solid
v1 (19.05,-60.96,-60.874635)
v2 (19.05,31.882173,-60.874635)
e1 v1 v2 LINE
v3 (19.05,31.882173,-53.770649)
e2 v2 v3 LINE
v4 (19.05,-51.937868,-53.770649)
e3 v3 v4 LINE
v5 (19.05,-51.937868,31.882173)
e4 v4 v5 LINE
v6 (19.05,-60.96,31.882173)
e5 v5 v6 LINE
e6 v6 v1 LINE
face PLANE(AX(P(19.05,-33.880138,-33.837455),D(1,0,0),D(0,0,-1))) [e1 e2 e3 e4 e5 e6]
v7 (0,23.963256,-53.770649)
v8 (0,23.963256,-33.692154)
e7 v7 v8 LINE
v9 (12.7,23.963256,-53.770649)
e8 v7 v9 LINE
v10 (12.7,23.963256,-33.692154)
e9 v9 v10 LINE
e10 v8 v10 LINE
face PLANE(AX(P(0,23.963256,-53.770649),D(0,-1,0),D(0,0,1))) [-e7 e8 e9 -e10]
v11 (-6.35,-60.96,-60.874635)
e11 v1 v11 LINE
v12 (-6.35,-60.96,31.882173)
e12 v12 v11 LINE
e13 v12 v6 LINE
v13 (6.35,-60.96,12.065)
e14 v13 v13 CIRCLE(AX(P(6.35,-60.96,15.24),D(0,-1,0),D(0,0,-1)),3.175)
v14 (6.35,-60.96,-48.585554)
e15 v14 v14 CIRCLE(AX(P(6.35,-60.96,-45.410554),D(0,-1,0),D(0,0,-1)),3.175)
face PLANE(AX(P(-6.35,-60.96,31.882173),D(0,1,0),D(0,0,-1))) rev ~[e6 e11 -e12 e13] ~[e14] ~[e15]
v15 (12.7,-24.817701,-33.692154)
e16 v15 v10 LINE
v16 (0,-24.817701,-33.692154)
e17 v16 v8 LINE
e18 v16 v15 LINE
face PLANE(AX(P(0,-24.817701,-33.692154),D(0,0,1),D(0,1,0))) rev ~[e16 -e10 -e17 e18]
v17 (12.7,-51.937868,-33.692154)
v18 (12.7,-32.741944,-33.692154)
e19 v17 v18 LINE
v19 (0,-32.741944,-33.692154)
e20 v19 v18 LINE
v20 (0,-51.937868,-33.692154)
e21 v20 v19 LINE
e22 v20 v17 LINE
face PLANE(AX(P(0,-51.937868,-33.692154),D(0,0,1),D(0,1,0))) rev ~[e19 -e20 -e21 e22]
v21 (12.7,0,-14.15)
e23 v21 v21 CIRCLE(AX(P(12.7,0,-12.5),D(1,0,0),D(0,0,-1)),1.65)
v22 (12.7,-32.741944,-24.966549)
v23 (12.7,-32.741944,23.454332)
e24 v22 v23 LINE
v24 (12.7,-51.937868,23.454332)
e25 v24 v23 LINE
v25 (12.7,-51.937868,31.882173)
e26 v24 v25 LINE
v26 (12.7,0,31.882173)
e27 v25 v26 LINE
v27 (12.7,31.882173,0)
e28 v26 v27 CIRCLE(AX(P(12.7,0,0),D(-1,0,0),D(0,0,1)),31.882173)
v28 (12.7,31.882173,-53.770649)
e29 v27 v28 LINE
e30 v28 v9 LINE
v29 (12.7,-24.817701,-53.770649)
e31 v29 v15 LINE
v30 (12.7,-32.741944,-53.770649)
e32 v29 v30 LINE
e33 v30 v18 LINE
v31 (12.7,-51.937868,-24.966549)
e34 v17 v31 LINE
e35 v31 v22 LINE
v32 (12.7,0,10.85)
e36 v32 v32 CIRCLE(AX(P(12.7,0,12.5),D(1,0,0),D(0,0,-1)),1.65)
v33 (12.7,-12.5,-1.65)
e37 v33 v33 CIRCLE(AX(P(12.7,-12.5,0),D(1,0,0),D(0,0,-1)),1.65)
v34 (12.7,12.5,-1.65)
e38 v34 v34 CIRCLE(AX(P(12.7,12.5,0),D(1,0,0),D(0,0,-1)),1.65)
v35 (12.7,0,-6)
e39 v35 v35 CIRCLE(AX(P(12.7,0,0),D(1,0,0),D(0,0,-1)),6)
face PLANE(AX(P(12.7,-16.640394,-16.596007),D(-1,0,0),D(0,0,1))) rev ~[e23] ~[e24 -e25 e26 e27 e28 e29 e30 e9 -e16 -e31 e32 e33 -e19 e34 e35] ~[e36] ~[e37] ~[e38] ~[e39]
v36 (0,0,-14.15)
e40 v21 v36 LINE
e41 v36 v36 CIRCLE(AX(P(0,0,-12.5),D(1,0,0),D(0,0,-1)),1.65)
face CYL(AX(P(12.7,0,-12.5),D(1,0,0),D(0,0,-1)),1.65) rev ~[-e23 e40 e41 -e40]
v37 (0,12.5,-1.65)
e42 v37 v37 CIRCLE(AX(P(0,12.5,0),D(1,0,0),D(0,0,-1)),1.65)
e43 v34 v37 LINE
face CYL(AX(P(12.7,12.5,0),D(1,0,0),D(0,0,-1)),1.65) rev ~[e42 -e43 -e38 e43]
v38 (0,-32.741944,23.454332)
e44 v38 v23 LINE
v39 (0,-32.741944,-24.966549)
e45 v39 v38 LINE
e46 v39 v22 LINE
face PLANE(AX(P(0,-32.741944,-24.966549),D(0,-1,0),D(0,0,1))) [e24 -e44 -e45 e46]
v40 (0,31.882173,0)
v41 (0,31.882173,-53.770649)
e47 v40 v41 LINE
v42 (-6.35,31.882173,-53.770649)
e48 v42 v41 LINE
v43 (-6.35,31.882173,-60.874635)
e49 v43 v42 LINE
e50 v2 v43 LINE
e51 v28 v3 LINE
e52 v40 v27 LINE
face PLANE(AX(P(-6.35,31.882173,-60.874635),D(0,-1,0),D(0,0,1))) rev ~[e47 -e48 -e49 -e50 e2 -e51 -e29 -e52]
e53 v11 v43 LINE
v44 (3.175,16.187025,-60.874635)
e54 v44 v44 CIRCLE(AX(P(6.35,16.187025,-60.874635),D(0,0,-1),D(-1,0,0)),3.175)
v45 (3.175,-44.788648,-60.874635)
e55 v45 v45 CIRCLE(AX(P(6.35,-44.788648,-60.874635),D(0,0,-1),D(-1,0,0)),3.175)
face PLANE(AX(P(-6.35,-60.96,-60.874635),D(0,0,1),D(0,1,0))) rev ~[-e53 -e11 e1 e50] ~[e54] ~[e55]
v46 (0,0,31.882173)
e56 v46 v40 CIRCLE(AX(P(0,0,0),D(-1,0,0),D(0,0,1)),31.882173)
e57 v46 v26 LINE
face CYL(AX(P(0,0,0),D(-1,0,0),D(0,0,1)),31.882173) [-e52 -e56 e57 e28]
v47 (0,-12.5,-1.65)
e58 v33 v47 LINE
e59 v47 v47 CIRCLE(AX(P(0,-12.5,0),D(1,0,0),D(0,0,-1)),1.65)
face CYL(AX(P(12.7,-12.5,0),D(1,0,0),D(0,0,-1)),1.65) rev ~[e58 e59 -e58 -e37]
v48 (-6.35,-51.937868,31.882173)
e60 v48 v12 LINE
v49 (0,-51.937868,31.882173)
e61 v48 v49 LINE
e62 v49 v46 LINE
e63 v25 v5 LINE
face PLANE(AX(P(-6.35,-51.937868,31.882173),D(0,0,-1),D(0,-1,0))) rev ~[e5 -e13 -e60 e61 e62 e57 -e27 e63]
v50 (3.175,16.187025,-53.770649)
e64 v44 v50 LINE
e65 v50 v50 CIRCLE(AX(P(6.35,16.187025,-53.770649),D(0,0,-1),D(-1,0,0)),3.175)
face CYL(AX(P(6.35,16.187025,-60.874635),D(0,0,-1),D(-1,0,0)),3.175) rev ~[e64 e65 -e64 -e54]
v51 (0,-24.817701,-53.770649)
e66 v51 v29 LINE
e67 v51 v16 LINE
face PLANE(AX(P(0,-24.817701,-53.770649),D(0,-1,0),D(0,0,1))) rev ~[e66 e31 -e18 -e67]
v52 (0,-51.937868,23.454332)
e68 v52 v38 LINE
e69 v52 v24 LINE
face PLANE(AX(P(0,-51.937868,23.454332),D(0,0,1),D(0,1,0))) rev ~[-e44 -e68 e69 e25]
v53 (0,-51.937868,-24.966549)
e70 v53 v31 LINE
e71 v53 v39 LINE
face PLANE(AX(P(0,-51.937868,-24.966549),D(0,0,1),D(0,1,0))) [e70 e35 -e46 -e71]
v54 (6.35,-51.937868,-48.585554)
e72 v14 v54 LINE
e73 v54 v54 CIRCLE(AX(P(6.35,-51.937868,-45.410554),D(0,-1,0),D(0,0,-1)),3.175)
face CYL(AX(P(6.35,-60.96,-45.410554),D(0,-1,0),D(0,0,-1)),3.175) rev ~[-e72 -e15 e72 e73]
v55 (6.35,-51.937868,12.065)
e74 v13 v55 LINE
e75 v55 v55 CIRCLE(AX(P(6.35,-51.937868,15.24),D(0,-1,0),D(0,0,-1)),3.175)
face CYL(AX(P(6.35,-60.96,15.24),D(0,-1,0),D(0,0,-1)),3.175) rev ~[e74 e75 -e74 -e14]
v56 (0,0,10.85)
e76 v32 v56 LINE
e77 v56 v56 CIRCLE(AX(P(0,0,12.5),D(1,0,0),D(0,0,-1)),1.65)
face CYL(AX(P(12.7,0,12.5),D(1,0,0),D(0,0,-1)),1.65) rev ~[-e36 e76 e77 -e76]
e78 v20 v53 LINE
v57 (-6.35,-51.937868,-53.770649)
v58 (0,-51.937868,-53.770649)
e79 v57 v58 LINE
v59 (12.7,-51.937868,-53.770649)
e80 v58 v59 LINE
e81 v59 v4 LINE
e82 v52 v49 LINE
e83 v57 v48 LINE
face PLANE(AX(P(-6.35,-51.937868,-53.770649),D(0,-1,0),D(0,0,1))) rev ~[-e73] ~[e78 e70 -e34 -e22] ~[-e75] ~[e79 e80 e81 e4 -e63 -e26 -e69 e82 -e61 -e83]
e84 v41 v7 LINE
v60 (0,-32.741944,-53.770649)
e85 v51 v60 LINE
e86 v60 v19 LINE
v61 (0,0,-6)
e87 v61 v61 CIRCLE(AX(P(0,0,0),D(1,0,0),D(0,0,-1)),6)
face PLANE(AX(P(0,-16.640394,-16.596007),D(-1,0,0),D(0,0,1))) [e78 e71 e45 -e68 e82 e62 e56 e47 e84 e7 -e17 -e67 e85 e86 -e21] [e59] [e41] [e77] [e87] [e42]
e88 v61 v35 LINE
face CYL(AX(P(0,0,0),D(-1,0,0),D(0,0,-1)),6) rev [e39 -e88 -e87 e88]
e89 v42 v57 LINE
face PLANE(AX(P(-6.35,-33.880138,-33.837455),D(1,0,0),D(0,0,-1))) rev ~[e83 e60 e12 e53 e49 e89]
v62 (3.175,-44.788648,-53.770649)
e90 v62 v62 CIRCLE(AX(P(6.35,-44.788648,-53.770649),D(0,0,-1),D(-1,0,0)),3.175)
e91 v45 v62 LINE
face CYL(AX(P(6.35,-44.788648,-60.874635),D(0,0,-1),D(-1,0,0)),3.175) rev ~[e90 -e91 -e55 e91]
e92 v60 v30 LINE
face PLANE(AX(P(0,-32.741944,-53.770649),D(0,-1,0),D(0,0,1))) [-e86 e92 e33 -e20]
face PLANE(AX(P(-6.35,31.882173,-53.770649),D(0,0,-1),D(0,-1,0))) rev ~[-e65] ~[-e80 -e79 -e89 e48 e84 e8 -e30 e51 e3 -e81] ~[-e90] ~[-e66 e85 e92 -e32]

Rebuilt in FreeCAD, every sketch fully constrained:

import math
import FreeCAD as App
import Part
import Sketcher

V = App.Vector
Q = App.Units.Quantity

doc = App.newDocument("Part")
params = doc.addObject("Spreadsheet::Sheet", "Params")
for row, (alias, value) in enumerate([
    ("sketch1_width", "2.4 in"),
    ("pad1_length", "0.5 in"),
    ("pad2_length", "0.25 in"),
    ("pad2_length2", "0.75 in"),
    ("pocket1_length", "1.03 in"),
    ("sketch4_diameter", "0.25 in"),
    ("pocket2_length", "0.45 in"),
    ("sketch5_diameter", "0.25 in"),
    ("pocket3_length", "0.45 in"),
    ("pocket4_length", "0.86 in"),
], start=1):
    params.set(f"A{row}", alias)
    params.set(f"B{row}", "=" + value)
    params.setAlias(f"B{row}", alias)

body = doc.addObject("PartDesign::Body", "Body")

# Sketch on YZ plane
sketch1 = body.newObject("Sketcher::SketchObject", "Sketch")
sketch1.AttachmentSupport = (doc.getObject("YZ_Plane"), [""])
sketch1.MapMode = "FlatFace"
sketch1.addGeometry(Part.LineSegment(V(31.882173, -60.874635, 0), V(31.882173, 0, 0)), False)
sketch1.addGeometry(Part.ArcOfCircle(Part.Circle(V(0, 0, 0), V(0, 0, 1), 31.882173), math.radians(0), math.radians(90)), False)
sketch1.addGeometry(Part.LineSegment(V(0, 31.882173, 0), V(-60.96, 31.882173, 0)), False)
sketch1.addGeometry(Part.LineSegment(V(-60.96, 31.882173, 0), V(-60.96, -60.874635, 0)), False)
sketch1.addGeometry(Part.LineSegment(V(-60.96, -60.874635, 0), V(31.882173, -60.874635, 0)), False)
sketch1.addGeometry(Part.Circle(V(0, 0, 0), V(0, 0, 1), 6), False)
sketch1.addConstraint(Sketcher.Constraint("Tangent", 0, 2, 1, 1))
sketch1.addConstraint(Sketcher.Constraint("Tangent", 1, 2, 2, 1))
sketch1.addConstraint(Sketcher.Constraint("Coincident", 2, 2, 3, 1))
sketch1.addConstraint(Sketcher.Constraint("Coincident", 3, 2, 4, 1))
sketch1.addConstraint(Sketcher.Constraint("Coincident", 4, 2, 0, 1))
sketch1.addConstraint(Sketcher.Constraint("Vertical", 0))
sketch1.addConstraint(Sketcher.Constraint("Horizontal", 2))
sketch1.addConstraint(Sketcher.Constraint("Vertical", 3))
sketch1.addConstraint(Sketcher.Constraint("Horizontal", 4))
sketch1.addConstraint(Sketcher.Constraint("Coincident", 1, 3, -1, 1))
sketch1.addConstraint(Sketcher.Constraint("Coincident", 5, 3, -1, 1))
sketch1.addConstraint(Sketcher.Constraint("DistanceX", 2, 2, 2, 1, Q("2.4 in")))
sketch1.addConstraint(Sketcher.Constraint("Diameter", 5, 12.0))
sketch1.addConstraint(Sketcher.Constraint("Radius", 1, 31.882173))
sketch1.addConstraint(Sketcher.Constraint("DistanceY", 0, 1, 0, 2, 60.874635))
sketch1.setExpression("Constraints[11]", "Params.sketch1_width")
pad1 = body.newObject("PartDesign::Pad", "Pad")
pad1.Profile = sketch1
pad1.setExpression("Length", "Params.pad1_length")

# Sketch on YZ plane
sketch2 = body.newObject("Sketcher::SketchObject", "Sketch001")
sketch2.AttachmentSupport = (doc.getObject("YZ_Plane"), [""])
sketch2.MapMode = "FlatFace"
sketch2.AttachmentOffset = App.Placement(V(0, 0, 0.5 * 25.4), App.Rotation())
sketch2.addGeometry(Part.LineSegment(V(31.882173, -60.874635, 0), V(31.882173, -53.770649, 0)), False)
sketch2.addGeometry(Part.LineSegment(V(31.882173, -53.770649, 0), V(-51.937868, -53.770649, 0)), False)
sketch2.addGeometry(Part.LineSegment(V(-51.937868, -53.770649, 0), V(-51.937868, 31.882173, 0)), False)
sketch2.addGeometry(Part.LineSegment(V(-51.937868, 31.882173, 0), V(-60.96, 31.882173, 0)), False)
sketch2.addGeometry(Part.LineSegment(V(-60.96, 31.882173, 0), V(-60.96, -60.874635, 0)), False)
sketch2.addGeometry(Part.LineSegment(V(-60.96, -60.874635, 0), V(31.882173, -60.874635, 0)), False)
sketch2.addConstraint(Sketcher.Constraint("Coincident", 0, 2, 1, 1))
sketch2.addConstraint(Sketcher.Constraint("Coincident", 1, 2, 2, 1))
sketch2.addConstraint(Sketcher.Constraint("Coincident", 2, 2, 3, 1))
sketch2.addConstraint(Sketcher.Constraint("Coincident", 3, 2, 4, 1))
sketch2.addConstraint(Sketcher.Constraint("Coincident", 4, 2, 5, 1))
sketch2.addConstraint(Sketcher.Constraint("Coincident", 5, 2, 0, 1))
sketch2.addConstraint(Sketcher.Constraint("Vertical", 0))
sketch2.addConstraint(Sketcher.Constraint("Horizontal", 1))
sketch2.addConstraint(Sketcher.Constraint("Vertical", 2))
sketch2.addConstraint(Sketcher.Constraint("Horizontal", 3))
sketch2.addConstraint(Sketcher.Constraint("Vertical", 4))
sketch2.addConstraint(Sketcher.Constraint("Horizontal", 5))
sketch2.addConstraint(Sketcher.Constraint("DistanceX", 3, 2, -1, 1, Q("2.4 in")))
sketch2.addConstraint(Sketcher.Constraint("DistanceX", 1, 2, 1, 1, 83.820041))
sketch2.addConstraint(Sketcher.Constraint("DistanceY", 2, 1, 2, 2, 85.652822))
sketch2.addConstraint(Sketcher.Constraint("DistanceX", 3, 2, 3, 1, 9.022132))
sketch2.addConstraint(Sketcher.Constraint("DistanceY", 0, 1, 0, 2, 7.103986))
sketch2.addConstraint(Sketcher.Constraint("DistanceY", 0, 2, -1, 1, 53.770649))
pad2 = body.newObject("PartDesign::Pad", "Pad001")
pad2.Profile = sketch2
pad2.Type = "TwoLengths"
pad2.setExpression("Length", "Params.pad2_length")
pad2.setExpression("Length2", "Params.pad2_length2")

# Sketch on YZ plane
sketch3 = body.newObject("Sketcher::SketchObject", "Sketch002")
sketch3.AttachmentSupport = (doc.getObject("YZ_Plane"), [""])
sketch3.MapMode = "FlatFace"
sketch3.addGeometry(Part.LineSegment(V(23.963256, -53.770649, 0), V(-24.817701, -53.770649, 0)), False)
sketch3.addGeometry(Part.LineSegment(V(-24.817701, -53.770649, 0), V(-24.817701, -33.692154, 0)), False)
sketch3.addGeometry(Part.LineSegment(V(-24.817701, -33.692154, 0), V(23.963256, -33.692154, 0)), False)
sketch3.addGeometry(Part.LineSegment(V(23.963256, -33.692154, 0), V(23.963256, -53.770649, 0)), False)
sketch3.addGeometry(Part.LineSegment(V(-32.741944, -24.966549, 0), V(-51.937868, -24.966549, 0)), False)
sketch3.addGeometry(Part.LineSegment(V(-51.937868, -24.966549, 0), V(-51.937868, 23.454332, 0)), False)
sketch3.addGeometry(Part.LineSegment(V(-51.937868, 23.454332, 0), V(-32.741944, 23.454332, 0)), False)
sketch3.addGeometry(Part.LineSegment(V(-32.741944, 23.454332, 0), V(-32.741944, -24.966549, 0)), False)
sketch3.addGeometry(Part.LineSegment(V(-32.741944, -53.770649, 0), V(-51.937868, -53.770649, 0)), False)
sketch3.addGeometry(Part.LineSegment(V(-51.937868, -53.770649, 0), V(-51.937868, -33.692154, 0)), False)
sketch3.addGeometry(Part.LineSegment(V(-51.937868, -33.692154, 0), V(-32.741944, -33.692154, 0)), False)
sketch3.addGeometry(Part.LineSegment(V(-32.741944, -33.692154, 0), V(-32.741944, -53.770649, 0)), False)
sketch3.addConstraint(Sketcher.Constraint("Coincident", 0, 2, 1, 1))
sketch3.addConstraint(Sketcher.Constraint("Coincident", 1, 2, 2, 1))
sketch3.addConstraint(Sketcher.Constraint("Coincident", 2, 2, 3, 1))
sketch3.addConstraint(Sketcher.Constraint("Coincident", 3, 2, 0, 1))
sketch3.addConstraint(Sketcher.Constraint("Coincident", 4, 2, 5, 1))
sketch3.addConstraint(Sketcher.Constraint("Coincident", 5, 2, 6, 1))
sketch3.addConstraint(Sketcher.Constraint("Coincident", 6, 2, 7, 1))
sketch3.addConstraint(Sketcher.Constraint("Coincident", 7, 2, 4, 1))
sketch3.addConstraint(Sketcher.Constraint("Coincident", 8, 2, 9, 1))
sketch3.addConstraint(Sketcher.Constraint("Coincident", 9, 2, 10, 1))
sketch3.addConstraint(Sketcher.Constraint("Coincident", 10, 2, 11, 1))
sketch3.addConstraint(Sketcher.Constraint("Coincident", 11, 2, 8, 1))
sketch3.addConstraint(Sketcher.Constraint("Horizontal", 0))
sketch3.addConstraint(Sketcher.Constraint("Vertical", 1))
sketch3.addConstraint(Sketcher.Constraint("Horizontal", 2))
sketch3.addConstraint(Sketcher.Constraint("Vertical", 3))
sketch3.addConstraint(Sketcher.Constraint("Horizontal", 4))
sketch3.addConstraint(Sketcher.Constraint("Vertical", 5))
sketch3.addConstraint(Sketcher.Constraint("Horizontal", 6))
sketch3.addConstraint(Sketcher.Constraint("Vertical", 7))
sketch3.addConstraint(Sketcher.Constraint("Horizontal", 8))
sketch3.addConstraint(Sketcher.Constraint("Vertical", 9))
sketch3.addConstraint(Sketcher.Constraint("Horizontal", 10))
sketch3.addConstraint(Sketcher.Constraint("Vertical", 11))
sketch3.addConstraint(Sketcher.Constraint("Horizontal", 3, 2, 8, 2))
sketch3.addConstraint(Sketcher.Constraint("Horizontal", 2, 2, 9, 2))
sketch3.addConstraint(Sketcher.Constraint("Vertical", 5, 2, 8, 2))
sketch3.addConstraint(Sketcher.Constraint("Vertical", 7, 2, 10, 2))
sketch3.addConstraint(Sketcher.Constraint("DistanceY", 5, 1, 5, 2, 48.420881))
sketch3.addConstraint(Sketcher.Constraint("DistanceX", 0, 2, -1, 1, 24.817701))
sketch3.addConstraint(Sketcher.Constraint("DistanceY", 0, 2, 4, 2, 28.8041))
sketch3.addConstraint(Sketcher.Constraint("DistanceX", 6, 2, 2, 2, 56.7052))
sketch3.addConstraint(Sketcher.Constraint("DistanceX", 0, 2, 0, 1, 48.780957))
sketch3.addConstraint(Sketcher.Constraint("DistanceX", 4, 2, 4, 1, 19.195924))
sketch3.addConstraint(Sketcher.Constraint("DistanceY", 1, 1, 1, 2, 20.078495))
sketch3.addConstraint(Sketcher.Constraint("DistanceY", 0, 2, -1, 1, 53.770649))
pocket1 = body.newObject("PartDesign::Pocket", "Pocket")
pocket1.Profile = sketch3
pocket1.setExpression("Length", "Params.pocket1_length")
pocket1.Reversed = True

# Sketch on XY plane
sketch4 = body.newObject("Sketcher::SketchObject", "Sketch003")
sketch4.AttachmentSupport = (doc.getObject("XY_Plane"), [""])
sketch4.MapMode = "FlatFace"
sketch4.AttachmentOffset = App.Placement(V(0, 0, -60.874635), App.Rotation())
sketch4.addGeometry(Part.Circle(V(6.35, 16.187025, 0), V(0, 0, 1), 3.175), False)
sketch4.addGeometry(Part.Circle(V(6.35, -44.788648, 0), V(0, 0, 1), 3.175), False)
sketch4.addConstraint(Sketcher.Constraint("Equal", 0, 1))
sketch4.addConstraint(Sketcher.Constraint("Vertical", 0, 3, 1, 3))
sketch4.addConstraint(Sketcher.Constraint("Diameter", 0, Q("0.25 in")))
sketch4.addConstraint(Sketcher.Constraint("DistanceX", -1, 1, 0, 3, Q("0.25 in")))
sketch4.addConstraint(Sketcher.Constraint("DistanceY", 1, 3, -1, 1, 44.788648))
sketch4.addConstraint(Sketcher.Constraint("DistanceY", -1, 1, 0, 3, 16.187025))
sketch4.setExpression("Constraints[2]", "Params.sketch4_diameter")
pocket2 = body.newObject("PartDesign::Pocket", "Pocket001")
pocket2.Profile = sketch4
pocket2.setExpression("Length", "Params.pocket2_length")
pocket2.Reversed = True

# Sketch on XZ plane
sketch5 = body.newObject("Sketcher::SketchObject", "Sketch004")
sketch5.AttachmentSupport = (doc.getObject("XZ_Plane"), [""])
sketch5.MapMode = "FlatFace"
sketch5.AttachmentOffset = App.Placement(V(0, 0, 2.4 * 25.4), App.Rotation())
sketch5.addGeometry(Part.Circle(V(6.35, 15.24, 0), V(0, 0, 1), 3.175), False)
sketch5.addGeometry(Part.Circle(V(6.35, -45.410554, 0), V(0, 0, 1), 3.175), False)
sketch5.addConstraint(Sketcher.Constraint("Equal", 0, 1))
sketch5.addConstraint(Sketcher.Constraint("Vertical", 0, 3, 1, 3))
sketch5.addConstraint(Sketcher.Constraint("Diameter", 0, Q("0.25 in")))
sketch5.addConstraint(Sketcher.Constraint("DistanceY", -1, 1, 0, 3, Q("0.6 in")))
sketch5.addConstraint(Sketcher.Constraint("DistanceX", -1, 1, 0, 3, Q("0.25 in")))
sketch5.addConstraint(Sketcher.Constraint("DistanceY", 1, 3, -1, 1, 45.410554))
sketch5.setExpression("Constraints[2]", "Params.sketch5_diameter")
pocket3 = body.newObject("PartDesign::Pocket", "Pocket002")
pocket3.Profile = sketch5
pocket3.setExpression("Length", "Params.pocket3_length")

# Sketch on YZ plane
sketch6 = body.newObject("Sketcher::SketchObject", "Sketch005")
sketch6.AttachmentSupport = (doc.getObject("YZ_Plane"), [""])
sketch6.MapMode = "FlatFace"
sketch6.AttachmentOffset = App.Placement(V(0, 0, 0.5 * 25.4), App.Rotation())
sketch6.addGeometry(Part.Circle(V(-12.5, 0, 0), V(0, 0, 1), 1.65), False)
sketch6.addGeometry(Part.Circle(V(0, 12.5, 0), V(0, 0, 1), 1.65), False)
sketch6.addGeometry(Part.Circle(V(12.5, 0, 0), V(0, 0, 1), 1.65), False)
sketch6.addGeometry(Part.Circle(V(0, -12.5, 0), V(0, 0, 1), 1.65), False)
sketch6.addConstraint(Sketcher.Constraint("Equal", 0, 1))
sketch6.addConstraint(Sketcher.Constraint("Equal", 1, 2))
sketch6.addConstraint(Sketcher.Constraint("Equal", 2, 3))
sketch6.addConstraint(Sketcher.Constraint("Symmetric", 0, 3, 2, 3, -1, 1))
sketch6.addConstraint(Sketcher.Constraint("Symmetric", 1, 3, 3, 3, -1, 1))
sketch6.addConstraint(Sketcher.Constraint("PointOnObject", 0, 3, -1))
sketch6.addConstraint(Sketcher.Constraint("PointOnObject", 1, 3, -2))
sketch6.addConstraint(Sketcher.Constraint("Diameter", 0, 3.3))
sketch6.addConstraint(Sketcher.Constraint("DistanceX", 0, 3, -1, 1, 12.5))
sketch6.addConstraint(Sketcher.Constraint("DistanceY", -1, 1, 1, 3, 12.5))
pocket4 = body.newObject("PartDesign::Pocket", "Pocket003")
pocket4.Profile = sketch6
pocket4.setExpression("Length", "Params.pocket4_length")

doc.recompute()
